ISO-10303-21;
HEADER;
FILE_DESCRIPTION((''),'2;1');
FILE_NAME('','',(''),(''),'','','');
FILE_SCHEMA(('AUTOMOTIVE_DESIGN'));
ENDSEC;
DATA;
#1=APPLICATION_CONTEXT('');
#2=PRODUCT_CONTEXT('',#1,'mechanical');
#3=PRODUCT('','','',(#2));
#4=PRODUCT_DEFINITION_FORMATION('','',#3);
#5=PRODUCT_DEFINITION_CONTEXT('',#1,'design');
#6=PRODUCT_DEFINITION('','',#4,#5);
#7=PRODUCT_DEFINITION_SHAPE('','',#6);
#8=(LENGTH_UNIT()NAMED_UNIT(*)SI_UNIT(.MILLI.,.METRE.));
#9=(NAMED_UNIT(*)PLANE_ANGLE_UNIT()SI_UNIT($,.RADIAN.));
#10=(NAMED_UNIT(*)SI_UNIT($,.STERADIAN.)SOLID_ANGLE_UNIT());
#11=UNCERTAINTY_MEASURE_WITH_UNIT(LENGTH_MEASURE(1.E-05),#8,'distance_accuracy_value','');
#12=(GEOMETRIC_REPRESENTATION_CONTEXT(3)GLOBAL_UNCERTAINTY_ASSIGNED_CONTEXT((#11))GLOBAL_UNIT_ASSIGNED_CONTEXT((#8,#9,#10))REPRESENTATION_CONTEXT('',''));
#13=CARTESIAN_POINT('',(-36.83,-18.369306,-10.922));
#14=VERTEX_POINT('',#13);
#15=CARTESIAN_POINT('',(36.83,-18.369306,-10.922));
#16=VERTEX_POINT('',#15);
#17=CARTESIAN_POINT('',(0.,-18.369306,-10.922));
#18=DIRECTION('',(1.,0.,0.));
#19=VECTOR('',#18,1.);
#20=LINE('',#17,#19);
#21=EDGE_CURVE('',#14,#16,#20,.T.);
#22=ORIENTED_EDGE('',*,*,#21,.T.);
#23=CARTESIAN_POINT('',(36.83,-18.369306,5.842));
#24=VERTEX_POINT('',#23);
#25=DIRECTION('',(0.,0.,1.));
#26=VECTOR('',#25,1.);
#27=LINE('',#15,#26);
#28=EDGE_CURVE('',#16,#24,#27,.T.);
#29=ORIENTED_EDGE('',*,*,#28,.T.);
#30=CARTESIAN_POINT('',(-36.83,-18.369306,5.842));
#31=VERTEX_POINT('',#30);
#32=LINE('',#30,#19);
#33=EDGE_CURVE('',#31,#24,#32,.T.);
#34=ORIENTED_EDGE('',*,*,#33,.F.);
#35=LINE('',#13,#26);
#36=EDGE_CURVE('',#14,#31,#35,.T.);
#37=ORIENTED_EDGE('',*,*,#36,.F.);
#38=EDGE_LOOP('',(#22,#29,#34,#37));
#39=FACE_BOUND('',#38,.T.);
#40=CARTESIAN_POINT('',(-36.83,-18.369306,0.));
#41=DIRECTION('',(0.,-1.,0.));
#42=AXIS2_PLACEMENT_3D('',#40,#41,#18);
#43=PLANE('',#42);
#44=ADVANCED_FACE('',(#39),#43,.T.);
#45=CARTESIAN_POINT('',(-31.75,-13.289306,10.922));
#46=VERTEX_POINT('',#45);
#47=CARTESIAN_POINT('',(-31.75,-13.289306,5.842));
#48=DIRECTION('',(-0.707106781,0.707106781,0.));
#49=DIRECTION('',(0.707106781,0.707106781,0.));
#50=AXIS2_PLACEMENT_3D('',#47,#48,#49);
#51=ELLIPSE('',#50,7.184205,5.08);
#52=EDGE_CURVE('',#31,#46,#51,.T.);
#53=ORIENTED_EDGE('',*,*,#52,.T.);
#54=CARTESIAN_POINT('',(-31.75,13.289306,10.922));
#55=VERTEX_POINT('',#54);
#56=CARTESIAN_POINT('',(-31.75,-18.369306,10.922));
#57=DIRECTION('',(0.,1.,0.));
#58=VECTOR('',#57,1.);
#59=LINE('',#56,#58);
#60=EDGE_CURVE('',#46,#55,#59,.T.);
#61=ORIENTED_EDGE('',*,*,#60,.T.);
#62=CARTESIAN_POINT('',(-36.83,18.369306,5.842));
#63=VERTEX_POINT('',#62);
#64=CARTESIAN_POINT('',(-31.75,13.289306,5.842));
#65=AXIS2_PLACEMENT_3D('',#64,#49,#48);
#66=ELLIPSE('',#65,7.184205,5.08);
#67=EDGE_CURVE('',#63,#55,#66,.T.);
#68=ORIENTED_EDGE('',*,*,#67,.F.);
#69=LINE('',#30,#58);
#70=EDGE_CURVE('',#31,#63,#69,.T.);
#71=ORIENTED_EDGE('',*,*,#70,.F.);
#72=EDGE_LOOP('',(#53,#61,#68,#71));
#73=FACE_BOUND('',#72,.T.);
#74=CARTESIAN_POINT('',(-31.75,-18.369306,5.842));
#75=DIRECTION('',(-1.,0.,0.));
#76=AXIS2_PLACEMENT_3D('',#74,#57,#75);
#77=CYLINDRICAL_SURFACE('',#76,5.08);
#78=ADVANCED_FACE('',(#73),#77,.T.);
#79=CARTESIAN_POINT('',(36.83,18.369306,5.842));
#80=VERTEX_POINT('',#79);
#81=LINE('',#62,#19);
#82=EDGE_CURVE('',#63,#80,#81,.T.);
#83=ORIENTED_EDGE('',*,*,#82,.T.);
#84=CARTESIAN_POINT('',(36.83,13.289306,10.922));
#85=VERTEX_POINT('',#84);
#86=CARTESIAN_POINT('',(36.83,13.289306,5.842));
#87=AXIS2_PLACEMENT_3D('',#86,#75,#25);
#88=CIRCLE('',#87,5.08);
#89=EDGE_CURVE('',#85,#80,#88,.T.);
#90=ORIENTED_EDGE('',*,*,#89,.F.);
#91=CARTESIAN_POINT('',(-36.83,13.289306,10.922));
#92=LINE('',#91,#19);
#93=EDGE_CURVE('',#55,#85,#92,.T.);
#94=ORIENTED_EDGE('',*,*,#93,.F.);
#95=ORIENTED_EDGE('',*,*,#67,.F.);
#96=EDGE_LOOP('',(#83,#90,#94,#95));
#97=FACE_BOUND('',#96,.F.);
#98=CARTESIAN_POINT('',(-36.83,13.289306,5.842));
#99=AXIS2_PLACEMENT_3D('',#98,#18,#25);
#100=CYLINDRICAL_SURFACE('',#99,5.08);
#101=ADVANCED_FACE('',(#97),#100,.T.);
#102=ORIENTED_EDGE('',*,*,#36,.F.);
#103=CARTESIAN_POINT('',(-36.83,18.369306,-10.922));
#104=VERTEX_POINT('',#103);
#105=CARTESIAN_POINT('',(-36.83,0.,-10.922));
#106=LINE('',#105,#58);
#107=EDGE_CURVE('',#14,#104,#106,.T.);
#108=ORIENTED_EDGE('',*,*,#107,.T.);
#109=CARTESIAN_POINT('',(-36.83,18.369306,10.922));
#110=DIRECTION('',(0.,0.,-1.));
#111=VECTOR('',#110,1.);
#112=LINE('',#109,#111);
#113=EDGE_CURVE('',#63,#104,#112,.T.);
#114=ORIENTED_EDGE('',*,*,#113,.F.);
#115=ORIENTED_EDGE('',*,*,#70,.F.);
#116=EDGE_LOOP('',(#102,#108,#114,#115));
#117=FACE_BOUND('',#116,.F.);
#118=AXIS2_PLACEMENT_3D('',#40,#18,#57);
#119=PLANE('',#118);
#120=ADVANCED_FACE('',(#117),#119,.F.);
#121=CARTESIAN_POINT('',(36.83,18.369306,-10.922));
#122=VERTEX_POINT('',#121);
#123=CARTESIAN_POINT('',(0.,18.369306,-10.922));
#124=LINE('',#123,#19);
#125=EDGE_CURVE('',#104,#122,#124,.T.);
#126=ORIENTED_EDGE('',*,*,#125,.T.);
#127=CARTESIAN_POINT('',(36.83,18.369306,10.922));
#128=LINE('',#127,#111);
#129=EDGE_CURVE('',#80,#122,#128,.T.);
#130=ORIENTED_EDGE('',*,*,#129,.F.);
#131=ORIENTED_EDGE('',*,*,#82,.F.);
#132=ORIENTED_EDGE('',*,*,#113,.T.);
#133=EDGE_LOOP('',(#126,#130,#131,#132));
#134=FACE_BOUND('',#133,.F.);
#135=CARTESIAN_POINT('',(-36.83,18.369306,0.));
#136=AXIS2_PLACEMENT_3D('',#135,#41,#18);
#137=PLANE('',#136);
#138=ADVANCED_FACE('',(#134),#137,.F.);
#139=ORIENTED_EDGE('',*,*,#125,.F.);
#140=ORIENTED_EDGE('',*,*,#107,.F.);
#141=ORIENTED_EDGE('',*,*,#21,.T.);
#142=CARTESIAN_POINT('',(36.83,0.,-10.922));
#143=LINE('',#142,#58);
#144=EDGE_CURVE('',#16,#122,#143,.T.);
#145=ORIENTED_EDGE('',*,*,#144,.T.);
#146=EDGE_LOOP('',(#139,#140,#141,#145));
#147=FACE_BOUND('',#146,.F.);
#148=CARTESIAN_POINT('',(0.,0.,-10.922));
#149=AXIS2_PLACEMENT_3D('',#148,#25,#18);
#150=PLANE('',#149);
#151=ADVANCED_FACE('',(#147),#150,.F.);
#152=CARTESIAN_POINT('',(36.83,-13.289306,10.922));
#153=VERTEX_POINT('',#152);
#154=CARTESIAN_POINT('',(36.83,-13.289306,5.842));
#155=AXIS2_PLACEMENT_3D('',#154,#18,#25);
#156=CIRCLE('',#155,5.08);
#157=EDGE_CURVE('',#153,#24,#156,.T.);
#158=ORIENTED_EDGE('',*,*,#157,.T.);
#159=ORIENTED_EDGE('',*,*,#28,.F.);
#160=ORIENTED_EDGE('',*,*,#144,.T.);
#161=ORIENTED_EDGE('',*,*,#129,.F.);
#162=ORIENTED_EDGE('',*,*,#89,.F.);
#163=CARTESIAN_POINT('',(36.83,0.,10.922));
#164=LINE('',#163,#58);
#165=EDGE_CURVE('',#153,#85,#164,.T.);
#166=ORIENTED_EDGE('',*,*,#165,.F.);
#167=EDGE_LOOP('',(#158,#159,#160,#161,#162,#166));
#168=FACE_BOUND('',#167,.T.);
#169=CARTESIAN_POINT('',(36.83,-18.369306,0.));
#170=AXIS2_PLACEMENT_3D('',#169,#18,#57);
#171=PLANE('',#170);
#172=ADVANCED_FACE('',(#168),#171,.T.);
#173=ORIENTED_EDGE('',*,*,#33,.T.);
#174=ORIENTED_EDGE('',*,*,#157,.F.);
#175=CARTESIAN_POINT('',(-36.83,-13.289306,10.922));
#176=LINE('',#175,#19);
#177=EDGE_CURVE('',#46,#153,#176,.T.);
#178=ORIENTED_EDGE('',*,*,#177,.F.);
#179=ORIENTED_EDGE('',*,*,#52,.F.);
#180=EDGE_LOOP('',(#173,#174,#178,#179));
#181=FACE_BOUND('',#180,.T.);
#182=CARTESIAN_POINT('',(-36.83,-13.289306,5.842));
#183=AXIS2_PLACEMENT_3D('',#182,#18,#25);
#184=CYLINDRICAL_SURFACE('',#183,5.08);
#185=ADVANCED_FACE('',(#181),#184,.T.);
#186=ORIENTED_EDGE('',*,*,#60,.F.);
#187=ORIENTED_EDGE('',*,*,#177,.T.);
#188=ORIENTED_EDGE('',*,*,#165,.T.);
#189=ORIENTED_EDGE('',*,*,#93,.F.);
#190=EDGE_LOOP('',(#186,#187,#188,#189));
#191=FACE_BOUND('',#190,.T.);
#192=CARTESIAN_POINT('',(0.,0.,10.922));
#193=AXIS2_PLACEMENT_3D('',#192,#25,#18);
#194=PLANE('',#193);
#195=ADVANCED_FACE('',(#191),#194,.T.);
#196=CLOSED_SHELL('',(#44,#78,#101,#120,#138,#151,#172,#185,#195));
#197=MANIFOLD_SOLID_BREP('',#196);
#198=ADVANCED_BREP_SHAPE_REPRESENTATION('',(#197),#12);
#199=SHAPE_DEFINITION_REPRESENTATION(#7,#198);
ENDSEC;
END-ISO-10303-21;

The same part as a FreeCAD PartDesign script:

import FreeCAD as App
import Part
import Sketcher
Q = App.Units.Quantity


def edges_at(feature, points):
    """Names of the edges that pass closest to the given points."""
    edges = feature.Shape.Edges
    near = lambda p: min(range(len(edges)), key=lambda i: edges[i].distToShape(Part.Vertex(*p))[0])
    return sorted({f"Edge{near(p) + 1}" for p in points})


def add_polygon(sketch, points):
    """Adds a closed chain of lines whose ends are joined by coincident constraints."""
    first, n = sketch.GeometryCount, len(points)
    for a, b in zip(points, points[1:] + points[:1]):
        sketch.addGeometry(Part.LineSegment(App.Vector(*a, 0), App.Vector(*b, 0)), False)
    for i in range(n):
        sketch.addConstraint(Sketcher.Constraint("Coincident", first + i, 2, first + (i + 1) % n, 1))

doc = App.newDocument("Part")
body = doc.addObject("PartDesign::Body", "Body")

sketch1 = doc.addObject("Sketcher::SketchObject", "Sketch")
body.addObject(sketch1)
sketch1.AttachmentSupport = (doc.XY_Plane, [""])
sketch1.MapMode = "FlatFace"
add_polygon(sketch1, [(-37, 18), (-37, -18), (37, -18), (37, 18)])
sketch1.addConstraint([
    Sketcher.Constraint("Vertical", 0),
    Sketcher.Constraint("Horizontal", 1),
    Sketcher.Constraint("Vertical", 2),
    Sketcher.Constraint("Horizontal", 3),
    Sketcher.Constraint("Symmetric", 0, 2, 2, 2, -1, 1),
    Sketcher.Constraint("DistanceX", 1, 1, 1, 2, Q("2.9 in")),
    Sketcher.Constraint("DistanceY", 0, 2, 0, 1, 36.738612),
])
pad1 = doc.addObject("PartDesign::Pad", "Pad")
body.addObject(pad1)
pad1.Profile = sketch1
pad1.Length = Q("0.86 in")
pad1.Midplane = True
doc.recompute()

fillet = doc.addObject("PartDesign::Fillet", "Fillet")
body.addObject(fillet)
fillet.Base = (pad1, edges_at(pad1, [(-36.83, 0, 10.922), (0, -18.369, 10.922), (0, 18.369, 10.922)]))
fillet.Radius = Q("0.2 in")

doc.recompute()
